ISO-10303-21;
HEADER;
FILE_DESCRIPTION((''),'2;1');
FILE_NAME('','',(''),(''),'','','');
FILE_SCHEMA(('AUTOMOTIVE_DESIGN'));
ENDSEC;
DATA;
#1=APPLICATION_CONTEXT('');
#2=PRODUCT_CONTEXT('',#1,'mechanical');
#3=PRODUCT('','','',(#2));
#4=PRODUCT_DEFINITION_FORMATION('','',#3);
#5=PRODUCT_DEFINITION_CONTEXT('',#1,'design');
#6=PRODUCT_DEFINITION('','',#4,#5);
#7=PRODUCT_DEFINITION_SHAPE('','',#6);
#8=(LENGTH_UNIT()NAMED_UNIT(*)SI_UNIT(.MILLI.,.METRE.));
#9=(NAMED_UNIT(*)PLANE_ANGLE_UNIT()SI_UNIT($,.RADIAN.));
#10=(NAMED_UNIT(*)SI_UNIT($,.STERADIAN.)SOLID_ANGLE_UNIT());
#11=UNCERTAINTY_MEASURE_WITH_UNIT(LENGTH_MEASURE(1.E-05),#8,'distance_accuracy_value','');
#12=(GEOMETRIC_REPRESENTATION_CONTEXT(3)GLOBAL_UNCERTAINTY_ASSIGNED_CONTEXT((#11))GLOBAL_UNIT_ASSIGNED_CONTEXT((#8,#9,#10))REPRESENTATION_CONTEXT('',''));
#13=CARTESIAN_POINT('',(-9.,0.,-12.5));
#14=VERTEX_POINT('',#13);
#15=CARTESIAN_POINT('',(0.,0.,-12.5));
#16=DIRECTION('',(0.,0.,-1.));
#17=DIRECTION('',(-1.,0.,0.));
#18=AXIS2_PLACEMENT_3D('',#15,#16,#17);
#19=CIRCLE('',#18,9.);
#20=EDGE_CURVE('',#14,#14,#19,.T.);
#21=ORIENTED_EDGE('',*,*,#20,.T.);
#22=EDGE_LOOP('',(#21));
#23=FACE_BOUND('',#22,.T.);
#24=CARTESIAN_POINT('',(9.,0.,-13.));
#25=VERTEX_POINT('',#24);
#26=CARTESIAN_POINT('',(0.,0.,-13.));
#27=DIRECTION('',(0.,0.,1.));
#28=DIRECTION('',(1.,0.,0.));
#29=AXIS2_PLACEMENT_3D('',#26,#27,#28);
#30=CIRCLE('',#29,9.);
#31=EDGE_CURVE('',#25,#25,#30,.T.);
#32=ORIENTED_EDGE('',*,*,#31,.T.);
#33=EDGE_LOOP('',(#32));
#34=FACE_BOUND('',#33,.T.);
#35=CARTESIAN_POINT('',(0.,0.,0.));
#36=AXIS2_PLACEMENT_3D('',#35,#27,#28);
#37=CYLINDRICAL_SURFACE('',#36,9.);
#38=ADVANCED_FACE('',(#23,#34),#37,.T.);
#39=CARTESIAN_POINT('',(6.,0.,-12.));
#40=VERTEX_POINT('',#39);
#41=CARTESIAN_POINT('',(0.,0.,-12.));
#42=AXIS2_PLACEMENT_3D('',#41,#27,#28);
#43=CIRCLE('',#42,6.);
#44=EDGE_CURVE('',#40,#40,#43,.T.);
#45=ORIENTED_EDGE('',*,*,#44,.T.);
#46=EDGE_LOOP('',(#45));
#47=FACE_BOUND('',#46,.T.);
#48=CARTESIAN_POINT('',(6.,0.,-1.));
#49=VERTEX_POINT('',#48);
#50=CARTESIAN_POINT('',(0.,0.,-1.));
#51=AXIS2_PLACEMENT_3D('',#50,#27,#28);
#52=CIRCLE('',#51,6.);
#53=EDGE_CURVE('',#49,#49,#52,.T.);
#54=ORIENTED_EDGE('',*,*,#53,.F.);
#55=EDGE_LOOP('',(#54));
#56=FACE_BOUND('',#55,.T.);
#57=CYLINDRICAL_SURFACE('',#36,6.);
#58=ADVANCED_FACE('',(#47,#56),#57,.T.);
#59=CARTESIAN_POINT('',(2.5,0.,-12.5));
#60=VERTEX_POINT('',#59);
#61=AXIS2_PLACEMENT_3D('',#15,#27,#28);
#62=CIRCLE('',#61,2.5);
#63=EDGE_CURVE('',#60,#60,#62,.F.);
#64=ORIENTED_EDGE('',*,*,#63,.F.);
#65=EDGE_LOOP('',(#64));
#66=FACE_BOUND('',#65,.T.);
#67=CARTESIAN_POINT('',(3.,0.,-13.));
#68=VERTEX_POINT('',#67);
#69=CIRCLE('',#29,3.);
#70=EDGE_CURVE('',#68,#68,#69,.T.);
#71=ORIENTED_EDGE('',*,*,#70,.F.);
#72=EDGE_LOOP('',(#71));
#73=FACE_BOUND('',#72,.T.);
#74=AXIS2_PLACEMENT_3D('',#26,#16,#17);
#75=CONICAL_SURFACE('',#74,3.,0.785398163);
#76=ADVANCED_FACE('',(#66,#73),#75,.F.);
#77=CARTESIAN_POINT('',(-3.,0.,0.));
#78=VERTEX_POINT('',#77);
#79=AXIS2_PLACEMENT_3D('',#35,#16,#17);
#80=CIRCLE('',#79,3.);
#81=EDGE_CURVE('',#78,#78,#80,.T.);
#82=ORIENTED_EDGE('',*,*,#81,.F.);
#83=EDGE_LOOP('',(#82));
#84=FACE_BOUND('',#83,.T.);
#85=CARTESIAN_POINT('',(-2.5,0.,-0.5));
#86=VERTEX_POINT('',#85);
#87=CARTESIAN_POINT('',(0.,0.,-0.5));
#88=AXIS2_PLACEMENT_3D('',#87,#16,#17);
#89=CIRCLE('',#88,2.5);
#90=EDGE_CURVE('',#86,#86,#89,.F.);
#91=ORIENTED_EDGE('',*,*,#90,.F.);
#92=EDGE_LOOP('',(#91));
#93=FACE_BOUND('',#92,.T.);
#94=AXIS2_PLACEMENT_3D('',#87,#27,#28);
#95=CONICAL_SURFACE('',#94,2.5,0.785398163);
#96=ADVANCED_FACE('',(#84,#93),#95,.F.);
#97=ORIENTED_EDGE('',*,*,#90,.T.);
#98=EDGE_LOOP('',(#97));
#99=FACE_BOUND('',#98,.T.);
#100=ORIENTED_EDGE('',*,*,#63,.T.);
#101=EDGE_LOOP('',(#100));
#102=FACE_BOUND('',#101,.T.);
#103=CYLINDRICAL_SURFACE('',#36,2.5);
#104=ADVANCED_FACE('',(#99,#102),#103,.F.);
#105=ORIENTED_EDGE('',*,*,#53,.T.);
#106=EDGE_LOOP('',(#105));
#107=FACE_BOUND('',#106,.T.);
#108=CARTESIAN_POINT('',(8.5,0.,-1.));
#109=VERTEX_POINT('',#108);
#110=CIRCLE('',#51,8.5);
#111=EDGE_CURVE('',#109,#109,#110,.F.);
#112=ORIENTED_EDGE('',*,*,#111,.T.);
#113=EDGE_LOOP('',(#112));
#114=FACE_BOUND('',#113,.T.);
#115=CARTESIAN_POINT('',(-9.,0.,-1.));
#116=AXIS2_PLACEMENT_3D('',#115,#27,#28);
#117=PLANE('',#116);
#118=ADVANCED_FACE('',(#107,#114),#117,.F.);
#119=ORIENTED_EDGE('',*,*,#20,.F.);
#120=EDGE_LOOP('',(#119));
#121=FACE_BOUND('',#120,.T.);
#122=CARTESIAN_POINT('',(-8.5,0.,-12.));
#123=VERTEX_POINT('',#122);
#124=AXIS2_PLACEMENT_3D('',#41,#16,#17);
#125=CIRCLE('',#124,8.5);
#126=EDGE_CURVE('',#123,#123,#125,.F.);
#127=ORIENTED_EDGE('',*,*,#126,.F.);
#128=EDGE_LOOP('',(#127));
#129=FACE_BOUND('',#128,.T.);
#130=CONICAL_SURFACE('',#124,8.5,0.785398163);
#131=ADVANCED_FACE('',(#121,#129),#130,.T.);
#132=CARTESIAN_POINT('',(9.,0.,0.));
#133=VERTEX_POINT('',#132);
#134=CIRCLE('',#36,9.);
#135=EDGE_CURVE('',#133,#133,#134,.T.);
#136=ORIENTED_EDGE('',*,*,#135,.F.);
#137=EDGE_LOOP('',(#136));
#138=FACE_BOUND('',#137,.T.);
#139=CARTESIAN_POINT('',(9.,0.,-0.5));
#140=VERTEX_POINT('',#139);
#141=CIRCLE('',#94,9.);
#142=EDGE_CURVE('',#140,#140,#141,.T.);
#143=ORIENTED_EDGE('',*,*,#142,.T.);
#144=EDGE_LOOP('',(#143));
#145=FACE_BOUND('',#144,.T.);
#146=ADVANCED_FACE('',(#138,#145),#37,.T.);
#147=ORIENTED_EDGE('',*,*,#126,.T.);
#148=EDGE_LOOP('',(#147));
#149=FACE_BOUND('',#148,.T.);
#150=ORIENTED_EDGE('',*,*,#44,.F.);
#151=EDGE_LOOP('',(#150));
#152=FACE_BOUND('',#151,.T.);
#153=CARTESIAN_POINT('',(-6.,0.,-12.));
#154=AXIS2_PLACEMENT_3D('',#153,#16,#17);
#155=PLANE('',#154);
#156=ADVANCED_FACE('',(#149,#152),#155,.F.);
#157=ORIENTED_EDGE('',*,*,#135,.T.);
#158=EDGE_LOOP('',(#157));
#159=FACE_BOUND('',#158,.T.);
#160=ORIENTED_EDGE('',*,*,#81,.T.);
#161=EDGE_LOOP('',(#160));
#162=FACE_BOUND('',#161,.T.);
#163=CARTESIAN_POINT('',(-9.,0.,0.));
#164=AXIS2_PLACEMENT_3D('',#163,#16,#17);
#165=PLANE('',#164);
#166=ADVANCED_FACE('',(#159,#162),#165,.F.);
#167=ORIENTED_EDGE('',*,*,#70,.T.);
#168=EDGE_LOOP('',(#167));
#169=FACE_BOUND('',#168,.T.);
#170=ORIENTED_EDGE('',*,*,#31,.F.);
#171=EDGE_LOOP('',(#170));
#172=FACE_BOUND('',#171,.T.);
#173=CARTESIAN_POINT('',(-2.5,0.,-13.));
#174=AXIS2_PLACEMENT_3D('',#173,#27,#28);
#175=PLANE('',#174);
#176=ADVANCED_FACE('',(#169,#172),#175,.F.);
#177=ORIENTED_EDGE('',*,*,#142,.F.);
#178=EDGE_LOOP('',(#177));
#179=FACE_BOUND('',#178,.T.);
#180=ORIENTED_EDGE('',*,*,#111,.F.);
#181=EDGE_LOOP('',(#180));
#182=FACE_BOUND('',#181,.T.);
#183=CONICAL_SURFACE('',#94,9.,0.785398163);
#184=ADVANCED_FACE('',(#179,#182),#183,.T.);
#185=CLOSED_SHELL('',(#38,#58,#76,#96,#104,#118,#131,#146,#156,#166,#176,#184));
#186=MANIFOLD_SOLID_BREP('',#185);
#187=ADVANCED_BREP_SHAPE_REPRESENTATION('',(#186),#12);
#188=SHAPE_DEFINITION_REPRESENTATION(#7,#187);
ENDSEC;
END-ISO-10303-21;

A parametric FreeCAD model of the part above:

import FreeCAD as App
import Part
import Sketcher


def edges_at(feature, points):
    """Names of the edges that pass closest to the given points."""
    edges = feature.Shape.Edges
    near = lambda p: min(range(len(edges)), key=lambda i: edges[i].distToShape(Part.Vertex(*p))[0])
    return sorted({f"Edge{near(p) + 1}" for p in points})


def add_polygon(sketch, points):
    """Adds a closed chain of lines whose ends are joined by coincident constraints."""
    first, n = sketch.GeometryCount, len(points)
    for a, b in zip(points, points[1:] + points[:1]):
        sketch.addGeometry(Part.LineSegment(App.Vector(*a, 0), App.Vector(*b, 0)), False)
    for i in range(n):
        sketch.addConstraint(Sketcher.Constraint("Coincident", first + i, 2, first + (i + 1) % n, 1))

doc = App.newDocument("Part")
params = doc.addObject("Spreadsheet::Sheet", "Params")
for row, (alias, value) in enumerate([
    ("sketch1_width", "3 mm"),
    ("sketch1_height", "13 mm"),
    ("sketch1_height2", "1 mm"),
    ("sketch1_width2", "6.5 mm"),
    ("revolution_angle", "360 deg"),
    ("chamfer_size", "0.5 mm"),
], start=1):
    params.set(f"A{row}", alias)
    params.set(f"B{row}", "=" + value)
    params.setAlias(f"B{row}", alias)

body = doc.addObject("PartDesign::Body", "Body")

sketch1 = body.newObject("Sketcher::SketchObject", "Sketch")
sketch1.AttachmentSupport = (doc.getObject("XZ_Plane"), [""])
sketch1.MapMode = "FlatFace"
add_polygon(sketch1, [(-2.5, 0), (-2.5, -13), (-9, -13), (-9, -12), (-6, -12), (-6, -1), (-9, -1), (-9, 0)])
sketch1.addConstraint([
    Sketcher.Constraint("Vertical", 0),
    Sketcher.Constraint("Horizontal", 1),
    Sketcher.Constraint("Vertical", 2),
    Sketcher.Constraint("Horizontal", 3),
    Sketcher.Constraint("Vertical", 4),
    Sketcher.Constraint("Horizontal", 5),
    Sketcher.Constraint("Vertical", 6),
    Sketcher.Constraint("Horizontal", 7),
    Sketcher.Constraint("PointOnObject", 6, 2, -1),
    Sketcher.Constraint("Vertical", 2, 2, 5, 2),
    Sketcher.Constraint("Equal", 2, 6),
    Sketcher.Constraint("DistanceX", 3, 1, 3, 2, 3.0),
    Sketcher.Constraint("DistanceY", 0, 2, 0, 1, 13.0),
    Sketcher.Constraint("DistanceY", 2, 1, 2, 2, 1.0),
    Sketcher.Constraint("DistanceX", 1, 2, 1, 1, 6.5),
    Sketcher.Constraint("DistanceX", 1, 2, -1, 1, 9.0),
])
sketch1.setExpression("Constraints[19]", "Params.sketch1_width")
sketch1.setExpression("Constraints[20]", "Params.sketch1_height")
sketch1.setExpression("Constraints[21]", "Params.sketch1_height2")
sketch1.setExpression("Constraints[22]", "Params.sketch1_width2")
revolution = body.newObject("PartDesign::Revolution", "Revolution")
revolution.Profile = sketch1
revolution.ReferenceAxis = (sketch1, ["V_Axis"])
revolution.setExpression("Angle", "Params.revolution_angle")
doc.recompute()

chamfer = body.newObject("PartDesign::Chamfer", "Chamfer")
chamfer.Base = (revolution, edges_at(revolution, [
    (2.5, 0, -13),
    (2.5, 0, 0),
    (9, 0, -1),
    (9, 0, -12),
]))
chamfer.setExpression("Size", "Params.chamfer_size")

doc.recompute()
